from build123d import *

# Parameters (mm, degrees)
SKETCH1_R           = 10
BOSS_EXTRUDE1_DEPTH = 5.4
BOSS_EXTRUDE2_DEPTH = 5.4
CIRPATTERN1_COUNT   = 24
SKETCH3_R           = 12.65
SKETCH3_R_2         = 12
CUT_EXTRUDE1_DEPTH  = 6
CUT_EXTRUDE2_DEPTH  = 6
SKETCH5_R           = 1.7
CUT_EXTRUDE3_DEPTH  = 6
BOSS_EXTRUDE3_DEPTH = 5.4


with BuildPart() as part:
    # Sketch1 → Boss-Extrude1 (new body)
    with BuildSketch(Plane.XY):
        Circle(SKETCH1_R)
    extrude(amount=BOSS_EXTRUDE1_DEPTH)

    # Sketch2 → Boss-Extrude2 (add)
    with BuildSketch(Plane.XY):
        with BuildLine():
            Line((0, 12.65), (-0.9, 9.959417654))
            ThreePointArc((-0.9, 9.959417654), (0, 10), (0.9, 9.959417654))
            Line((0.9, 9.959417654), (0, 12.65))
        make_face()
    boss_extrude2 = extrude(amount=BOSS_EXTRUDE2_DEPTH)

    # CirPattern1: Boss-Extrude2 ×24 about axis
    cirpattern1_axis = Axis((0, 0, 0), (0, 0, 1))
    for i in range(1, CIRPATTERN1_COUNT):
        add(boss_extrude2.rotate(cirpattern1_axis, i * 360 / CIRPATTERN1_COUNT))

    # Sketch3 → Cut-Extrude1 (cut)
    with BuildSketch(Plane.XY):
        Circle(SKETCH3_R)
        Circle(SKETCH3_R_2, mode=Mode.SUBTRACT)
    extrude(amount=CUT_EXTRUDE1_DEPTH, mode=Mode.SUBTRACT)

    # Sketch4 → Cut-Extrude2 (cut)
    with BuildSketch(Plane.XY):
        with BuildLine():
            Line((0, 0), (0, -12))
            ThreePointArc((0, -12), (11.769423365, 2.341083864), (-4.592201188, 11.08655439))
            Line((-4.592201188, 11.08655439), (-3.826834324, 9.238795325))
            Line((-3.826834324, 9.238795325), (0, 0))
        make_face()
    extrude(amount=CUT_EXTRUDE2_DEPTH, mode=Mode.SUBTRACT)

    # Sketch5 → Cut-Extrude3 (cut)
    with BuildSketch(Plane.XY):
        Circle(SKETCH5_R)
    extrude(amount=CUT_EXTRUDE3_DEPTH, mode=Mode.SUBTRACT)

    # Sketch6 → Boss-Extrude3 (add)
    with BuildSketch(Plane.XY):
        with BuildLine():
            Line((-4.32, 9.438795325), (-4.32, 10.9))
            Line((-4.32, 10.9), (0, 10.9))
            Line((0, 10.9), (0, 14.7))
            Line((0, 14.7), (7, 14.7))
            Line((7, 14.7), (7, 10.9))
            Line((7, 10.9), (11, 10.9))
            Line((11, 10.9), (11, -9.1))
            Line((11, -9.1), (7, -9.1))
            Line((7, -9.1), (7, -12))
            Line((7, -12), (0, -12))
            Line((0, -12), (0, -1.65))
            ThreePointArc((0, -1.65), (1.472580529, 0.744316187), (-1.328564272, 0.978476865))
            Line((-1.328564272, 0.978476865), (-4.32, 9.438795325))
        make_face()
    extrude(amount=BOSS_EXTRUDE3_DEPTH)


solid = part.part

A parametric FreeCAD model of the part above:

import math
import FreeCAD as App
import Part
import Sketcher
from FreeCAD import Vector
Q = App.Units.Quantity

doc = App.newDocument("Part")
body = doc.addObject("PartDesign::Body", "Body")

# Sketch on XY plane
sketch1 = doc.addObject("Sketcher::SketchObject", "Sketch")
body.addObject(sketch1)
sketch1.AttachmentSupport = (doc.XY_Plane, [""])
sketch1.MapMode = "FlatFace"
sketch1.addGeometry(Part.Circle(Vector(0, 0, 0), Vector(0, 0, 1), 10), False)
sketch1.addConstraint([
    Sketcher.Constraint("Coincident", 0, 3, -1, 1),
    Sketcher.Constraint("Diameter", 0, Q("20 mm")),
])
pad1 = doc.addObject("PartDesign::Pad", "Pad")
body.addObject(pad1)
pad1.Profile = sketch1
pad1.Length = 5.4

# Sketch on XY plane
sketch2 = doc.addObject("Sketcher::SketchObject", "Sketch001")
body.addObject(sketch2)
sketch2.AttachmentSupport = (doc.XY_Plane, [""])
sketch2.MapMode = "FlatFace"
sketch2.addGeometry([
    Part.LineSegment(Vector(0, 12.7, 0), Vector(-0.9, 10, 0)),
    Part.ArcOfCircle(Part.Circle(Vector(0, 0, 0), Vector(0, 0, 1), 10), math.radians(84.84), math.radians(95.16)),
    Part.LineSegment(Vector(0.9, 10, 0), Vector(0, 12.7, 0)),
], False)
sketch2.addConstraint([
    Sketcher.Constraint("Coincident", 0, 2, 1, 2),
    Sketcher.Constraint("Coincident", 1, 1, 2, 1),
    Sketcher.Constraint("Coincident", 2, 2, 0, 1),
    Sketcher.Constraint("Coincident", 1, 3, -1, 1),
    Sketcher.Constraint("PointOnObject", 2, 2, -2),
    Sketcher.Constraint("Horizontal", 0, 2, 1, 1),
    Sketcher.Constraint("Radius", 1, Q("10 mm")),
    Sketcher.Constraint("DistanceX", 0, 2, -1, 1, Q("0.9 mm")),
    Sketcher.Constraint("DistanceY", -1, 1, 2, 2, Q("12.65 mm")),
])
pad2 = doc.addObject("PartDesign::Pad", "Pad001")
body.addObject(pad2)
pad2.Profile = sketch2
pad2.Length = 5.4
doc.recompute()

polarpattern = doc.addObject("PartDesign::PolarPattern", "PolarPattern")
body.addObject(polarpattern)
polarpattern.Originals = [pad2]
polarpattern.Axis = (doc.Z_Axis, [""])
polarpattern.Angle = 360
polarpattern.Occurrences = 24
body.Tip = polarpattern

# Sketch on XY plane
sketch3 = doc.addObject("Sketcher::SketchObject", "Sketch002")
body.addObject(sketch3)
sketch3.AttachmentSupport = (doc.XY_Plane, [""])
sketch3.MapMode = "FlatFace"
sketch3.addGeometry([
    Part.Circle(Vector(0, 0, 0), Vector(0, 0, 1), 13),
    Part.Circle(Vector(0, 0, 0), Vector(0, 0, 1), 12),
], False)
sketch3.addConstraint([
    Sketcher.Constraint("Coincident", 0, 3, -1, 1),
    Sketcher.Constraint("Coincident", 1, 3, -1, 1),
    Sketcher.Constraint("Diameter", 1, Q("24 mm")),
    Sketcher.Constraint("Diameter", 0, Q("25.3 mm")),
])
pocket1 = doc.addObject("PartDesign::Pocket", "Pocket")
body.addObject(pocket1)
pocket1.Profile = sketch3
pocket1.Length = 6
pocket1.Reversed = True

# Sketch on XY plane
sketch4 = doc.addObject("Sketcher::SketchObject", "Sketch003")
body.addObject(sketch4)
sketch4.AttachmentSupport = (doc.XY_Plane, [""])
sketch4.MapMode = "FlatFace"
sketch4.addGeometry([
    Part.LineSegment(Vector(0, 0, 0), Vector(0, -12, 0)),
    Part.ArcOfCircle(Part.Circle(Vector(0, 0, 0), Vector(0, 0, 1), 12), math.radians(-90), math.radians(112)),
    Part.LineSegment(Vector(-4.6, 11.1, 0), Vector(-3.8, 9.2, 0)),
    Part.LineSegment(Vector(-3.8, 9.2, 0), Vector(0, 0, 0)),
], False)
sketch4.addConstraint([
    Sketcher.Constraint("Coincident", 0, 2, 1, 1),
    Sketcher.Constraint("Coincident", 1, 2, 2, 1),
    Sketcher.Constraint("Coincident", 2, 2, 3, 1),
    Sketcher.Constraint("Coincident", 3, 2, 0, 1),
    Sketcher.Constraint("Vertical", 0),
    Sketcher.Constraint("Coincident", 1, 3, -1, 1),
    Sketcher.Constraint("Coincident", 3, 2, -1, 1),
    Sketcher.Constraint("Parallel", 2, 3),
    Sketcher.Constraint("Radius", 1, Q("12 mm")),
    Sketcher.Constraint("Distance", 2, Q("2 mm")),
    Sketcher.Constraint("Angle", 2, Q("-67.5 deg")),
])
pocket2 = doc.addObject("PartDesign::Pocket", "Pocket001")
body.addObject(pocket2)
pocket2.Profile = sketch4
pocket2.Length = 6
pocket2.Reversed = True

# Sketch on XY plane
sketch5 = doc.addObject("Sketcher::SketchObject", "Sketch004")
body.addObject(sketch5)
sketch5.AttachmentSupport = (doc.XY_Plane, [""])
sketch5.MapMode = "FlatFace"
sketch5.addGeometry(Part.Circle(Vector(0, 0, 0), Vector(0, 0, 1), 1.7), False)
sketch5.addConstraint([
    Sketcher.Constraint("Coincident", 0, 3, -1, 1),
    Sketcher.Constraint("Diameter", 0, Q("3.4 mm")),
])
pocket3 = doc.addObject("PartDesign::Pocket", "Pocket002")
body.addObject(pocket3)
pocket3.Profile = sketch5
pocket3.Length = 6
pocket3.Reversed = True

# Sketch on XY plane
sketch6 = doc.addObject("Sketcher::SketchObject", "Sketch005")
body.addObject(sketch6)
sketch6.AttachmentSupport = (doc.XY_Plane, [""])
sketch6.MapMode = "FlatFace"
sketch6.addGeometry([
    Part.LineSegment(Vector(-4.3, 10.9, 0), Vector(-4.3, 9.4, 0)),  # 0
    Part.LineSegment(Vector(-4.3, 9.4, 0), Vector(-1.3, 1, 0)),  # 1
    Part.ArcOfCircle(Part.Circle(Vector(0, 0, 0), Vector(0, 0, 1), 1.6), math.radians(-90), math.radians(144)),  # 2
    Part.LineSegment(Vector(0, -1.6, 0), Vector(0, -12, 0)),  # 3
    Part.LineSegment(Vector(0, -12, 0), Vector(7, -12, 0)),  # 4
    Part.LineSegment(Vector(7, -12, 0), Vector(7, -9.1, 0)),  # 5
    Part.LineSegment(Vector(7, -9.1, 0), Vector(11, -9.1, 0)),  # 6
    Part.LineSegment(Vector(11, -9.1, 0), Vector(11, 10.9, 0)),  # 7
    Part.LineSegment(Vector(11, 10.9, 0), Vector(7, 10.9, 0)),  # 8
    Part.LineSegment(Vector(7, 10.9, 0), Vector(7, 14.7, 0)),  # 9
    Part.LineSegment(Vector(7, 14.7, 0), Vector(0, 14.7, 0)),  # 10
    Part.LineSegment(Vector(0, 14.7, 0), Vector(0, 10.9, 0)),  # 11
    Part.LineSegment(Vector(0, 10.9, 0), Vector(-4.3, 10.9, 0)),  # 12
], False)
sketch6.addConstraint([
    Sketcher.Constraint("Coincident", 0, 2, 1, 1),
    Sketcher.Constraint("Coincident", 1, 2, 2, 2),
    Sketcher.Constraint("Coincident", 2, 1, 3, 1),
    Sketcher.Constraint("Coincident", 3, 2, 4, 1),
    Sketcher.Constraint("Coincident", 4, 2, 5, 1),
    Sketcher.Constraint("Coincident", 5, 2, 6, 1),
    Sketcher.Constraint("Coincident", 6, 2, 7, 1),
    Sketcher.Constraint("Coincident", 7, 2, 8, 1),
    Sketcher.Constraint("Coincident", 8, 2, 9, 1),
    Sketcher.Constraint("Coincident", 9, 2, 10, 1),
    Sketcher.Constraint("Coincident", 10, 2, 11, 1),
    Sketcher.Constraint("Coincident", 11, 2, 12, 1),
    Sketcher.Constraint("Coincident", 12, 2, 0, 1),
    Sketcher.Constraint("Vertical", 0),
    Sketcher.Constraint("Vertical", 3),
    Sketcher.Constraint("Horizontal", 4),
    Sketcher.Constraint("Vertical", 5),
    Sketcher.Constraint("Horizontal", 6),
    Sketcher.Constraint("Vertical", 7),
    Sketcher.Constraint("Horizontal", 8),
    Sketcher.Constraint("Vertical", 9),
    Sketcher.Constraint("Horizontal", 10),
    Sketcher.Constraint("Vertical", 11),
    Sketcher.Constraint("Horizontal", 12),
    Sketcher.Constraint("Coincident", 2, 3, -1, 1),
    Sketcher.Constraint("PointOnObject", 2, 1, -2),
    Sketcher.Constraint("PointOnObject", 10, 2, -2),
    Sketcher.Constraint("Horizontal", 8, 2, 11, 2),
    Sketcher.Constraint("Vertical", 5, 2, 8, 2),
    Sketcher.Constraint("DistanceX", 4, 1, 4, 2, Q("7 mm")),
    Sketcher.Constraint("DistanceX", 6, 1, 6, 2, Q("4 mm")),
    Sketcher.Constraint("DistanceY", 7, 1, 7, 2, Q("20 mm")),
    Sketcher.Constraint("Radius", 2, Q("1.65 mm")),
    Sketcher.Constraint("DistanceY", 5, 1, 5, 2, Q("2.9 mm")),
    Sketcher.Constraint("DistanceY", 9, 1, 9, 2, Q("3.8 mm")),
    Sketcher.Constraint("DistanceY", 3, 2, -1, 1, Q("12 mm")),
    Sketcher.Constraint("DistanceX", 12, 2, 12, 1, Q("4.32 mm")),
    Sketcher.Constraint("Distance", 1, Q("8.97361 mm")),
    Sketcher.Constraint("DistanceY", 0, 2, 0, 1, Q("1.461205 mm")),
])
pad3 = doc.addObject("PartDesign::Pad", "Pad002")
body.addObject(pad3)
pad3.Profile = sketch6
pad3.Length = 5.4

doc.recompute()
